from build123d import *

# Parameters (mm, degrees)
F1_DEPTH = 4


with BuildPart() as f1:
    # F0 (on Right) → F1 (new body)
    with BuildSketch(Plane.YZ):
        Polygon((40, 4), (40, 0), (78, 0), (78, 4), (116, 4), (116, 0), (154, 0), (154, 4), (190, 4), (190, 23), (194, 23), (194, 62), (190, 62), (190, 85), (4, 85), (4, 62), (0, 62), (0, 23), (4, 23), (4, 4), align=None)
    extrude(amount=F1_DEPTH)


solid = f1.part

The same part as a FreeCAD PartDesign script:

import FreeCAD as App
import Part
import Sketcher
from FreeCAD import Vector
Q = App.Units.Quantity

doc = App.newDocument("Part")
body = doc.addObject("PartDesign::Body", "Body")

sketch1 = doc.addObject("Sketcher::SketchObject", "Sketch")
body.addObject(sketch1)
sketch1.AttachmentSupport = (doc.YZ_Plane, [""])
sketch1.MapMode = "FlatFace"
sketch1.addGeometry(Part.LineSegment(Vector(40, 4, 0), Vector(40, 0, 0)), False)
sketch1.addGeometry(Part.LineSegment(Vector(40, 0, 0), Vector(78, 0, 0)), False)
sketch1.addGeometry(Part.LineSegment(Vector(78, 0, 0), Vector(78, 4, 0)), False)
sketch1.addGeometry(Part.LineSegment(Vector(78, 4, 0), Vector(116, 4, 0)), False)
sketch1.addGeometry(Part.LineSegment(Vector(116, 4, 0), Vector(116, 0, 0)), False)
sketch1.addGeometry(Part.LineSegment(Vector(116, 0, 0), Vector(154, 0, 0)), False)
sketch1.addGeometry(Part.LineSegment(Vector(154, 0, 0), Vector(154, 4, 0)), False)
sketch1.addGeometry(Part.LineSegment(Vector(154, 4, 0), Vector(190, 4, 0)), False)
sketch1.addGeometry(Part.LineSegment(Vector(190, 4, 0), Vector(190, 23, 0)), False)
sketch1.addGeometry(Part.LineSegment(Vector(190, 23, 0), Vector(194, 23, 0)), False)
sketch1.addGeometry(Part.LineSegment(Vector(194, 23, 0), Vector(194, 62, 0)), False)
sketch1.addGeometry(Part.LineSegment(Vector(194, 62, 0), Vector(190, 62, 0)), False)
sketch1.addGeometry(Part.LineSegment(Vector(190, 62, 0), Vector(190, 85, 0)), False)
sketch1.addGeometry(Part.LineSegment(Vector(190, 85, 0), Vector(4, 85, 0)), False)
sketch1.addGeometry(Part.LineSegment(Vector(4, 85, 0), Vector(4, 62, 0)), False)
sketch1.addGeometry(Part.LineSegment(Vector(4, 62, 0), Vector(0, 62, 0)), False)
sketch1.addGeometry(Part.LineSegment(Vector(0, 62, 0), Vector(0, 23, 0)), False)
sketch1.addGeometry(Part.LineSegment(Vector(0, 23, 0), Vector(4, 23, 0)), False)
sketch1.addGeometry(Part.LineSegment(Vector(4, 23, 0), Vector(4, 4, 0)), False)
sketch1.addGeometry(Part.LineSegment(Vector(4, 4, 0), Vector(40, 4, 0)), False)
sketch1.addConstraint(Sketcher.Constraint("Coincident", 0, 2, 1, 1))
sketch1.addConstraint(Sketcher.Constraint("Coincident", 1, 2, 2, 1))
sketch1.addConstraint(Sketcher.Constraint("Coincident", 2, 2, 3, 1))
sketch1.addConstraint(Sketcher.Constraint("Coincident", 3, 2, 4, 1))
sketch1.addConstraint(Sketcher.Constraint("Coincident", 4, 2, 5, 1))
sketch1.addConstraint(Sketcher.Constraint("Coincident", 5, 2, 6, 1))
sketch1.addConstraint(Sketcher.Constraint("Coincident", 6, 2, 7, 1))
sketch1.addConstraint(Sketcher.Constraint("Coincident", 7, 2, 8, 1))
sketch1.addConstraint(Sketcher.Constraint("Coincident", 8, 2, 9, 1))
sketch1.addConstraint(Sketcher.Constraint("Coincident", 9, 2, 10, 1))
sketch1.addConstraint(Sketcher.Constraint("Coincident", 10, 2, 11, 1))
sketch1.addConstraint(Sketcher.Constraint("Coincident", 11, 2, 12, 1))
sketch1.addConstraint(Sketcher.Constraint("Coincident", 12, 2, 13, 1))
sketch1.addConstraint(Sketcher.Constraint("Coincident", 13, 2, 14, 1))
sketch1.addConstraint(Sketcher.Constraint("Coincident", 14, 2, 15, 1))
sketch1.addConstraint(Sketcher.Constraint("Coincident", 15, 2, 16, 1))
sketch1.addConstraint(Sketcher.Constraint("Coincident", 16, 2, 17, 1))
sketch1.addConstraint(Sketcher.Constraint("Coincident", 17, 2, 18, 1))
sketch1.addConstraint(Sketcher.Constraint("Coincident", 18, 2, 19, 1))
sketch1.addConstraint(Sketcher.Constraint("Coincident", 19, 2, 0, 1))
sketch1.addConstraint(Sketcher.Constraint("Vertical", 0))
sketch1.addConstraint(Sketcher.Constraint("Horizontal", 1))
sketch1.addConstraint(Sketcher.Constraint("Vertical", 2))
sketch1.addConstraint(Sketcher.Constraint("Horizontal", 3))
sketch1.addConstraint(Sketcher.Constraint("Vertical", 4))
sketch1.addConstraint(Sketcher.Constraint("Horizontal", 5))
sketch1.addConstraint(Sketcher.Constraint("Vertical", 6))
sketch1.addConstraint(Sketcher.Constraint("Horizontal", 7))
sketch1.addConstraint(Sketcher.Constraint("Vertical", 8))
sketch1.addConstraint(Sketcher.Constraint("Horizontal", 9))
sketch1.addConstraint(Sketcher.Constraint("Vertical", 10))
sketch1.addConstraint(Sketcher.Constraint("Horizontal", 11))
sketch1.addConstraint(Sketcher.Constraint("Vertical", 12))
sketch1.addConstraint(Sketcher.Constraint("Horizontal", 13))
sketch1.addConstraint(Sketcher.Constraint("Vertical", 14))
sketch1.addConstraint(Sketcher.Constraint("Horizontal", 15))
sketch1.addConstraint(Sketcher.Constraint("Vertical", 16))
sketch1.addConstraint(Sketcher.Constraint("Horizontal", 17))
sketch1.addConstraint(Sketcher.Constraint("Vertical", 18))
sketch1.addConstraint(Sketcher.Constraint("Horizontal", 19))
sketch1.addConstraint(Sketcher.Constraint("PointOnObject", 0, 2, -1))
sketch1.addConstraint(Sketcher.Constraint("PointOnObject", 4, 2, -1))
sketch1.addConstraint(Sketcher.Constraint("PointOnObject", 15, 2, -2))
sketch1.addConstraint(Sketcher.Constraint("Horizontal", 3, 2, 6, 2))
sketch1.addConstraint(Sketcher.Constraint("Horizontal", 11, 2, 14, 2))
sketch1.addConstraint(Sketcher.Constraint("Horizontal", 9, 2, 16, 2))
sketch1.addConstraint(Sketcher.Constraint("Horizontal", 7, 2, 18, 2))
sketch1.addConstraint(Sketcher.Constraint("Vertical", 8, 2, 11, 2))
sketch1.addConstraint(Sketcher.Constraint("Vertical", 14, 2, 17, 2))
sketch1.addConstraint(Sketcher.Constraint("Equal", 1, 3))
sketch1.addConstraint(Sketcher.Constraint("Equal", 3, 5))
sketch1.addConstraint(Sketcher.Constraint("Equal", 11, 15))
sketch1.addConstraint(Sketcher.Constraint("Equal", 7, 19))
sketch1.addConstraint(Sketcher.Constraint("Equal", 17, 0))
sketch1.addConstraint(Sketcher.Constraint("DistanceX", 1, 1, 1, 2, Q("38 mm")))
sketch1.addConstraint(Sketcher.Constraint("DistanceX", 7, 1, 7, 2, Q("36 mm")))
sketch1.addConstraint(Sketcher.Constraint("DistanceX", 9, 1, 9, 2, Q("4 mm")))
sketch1.addConstraint(Sketcher.Constraint("DistanceY", 8, 1, 8, 2, Q("19 mm")))
sketch1.addConstraint(Sketcher.Constraint("DistanceY", 10, 1, 10, 2, Q("39 mm")))
sketch1.addConstraint(Sketcher.Constraint("DistanceY", 12, 1, 12, 2, Q("23 mm")))
pad1 = doc.addObject("PartDesign::Pad", "Pad")
body.addObject(pad1)
pad1.Profile = sketch1
pad1.Length = 4

doc.recompute()
